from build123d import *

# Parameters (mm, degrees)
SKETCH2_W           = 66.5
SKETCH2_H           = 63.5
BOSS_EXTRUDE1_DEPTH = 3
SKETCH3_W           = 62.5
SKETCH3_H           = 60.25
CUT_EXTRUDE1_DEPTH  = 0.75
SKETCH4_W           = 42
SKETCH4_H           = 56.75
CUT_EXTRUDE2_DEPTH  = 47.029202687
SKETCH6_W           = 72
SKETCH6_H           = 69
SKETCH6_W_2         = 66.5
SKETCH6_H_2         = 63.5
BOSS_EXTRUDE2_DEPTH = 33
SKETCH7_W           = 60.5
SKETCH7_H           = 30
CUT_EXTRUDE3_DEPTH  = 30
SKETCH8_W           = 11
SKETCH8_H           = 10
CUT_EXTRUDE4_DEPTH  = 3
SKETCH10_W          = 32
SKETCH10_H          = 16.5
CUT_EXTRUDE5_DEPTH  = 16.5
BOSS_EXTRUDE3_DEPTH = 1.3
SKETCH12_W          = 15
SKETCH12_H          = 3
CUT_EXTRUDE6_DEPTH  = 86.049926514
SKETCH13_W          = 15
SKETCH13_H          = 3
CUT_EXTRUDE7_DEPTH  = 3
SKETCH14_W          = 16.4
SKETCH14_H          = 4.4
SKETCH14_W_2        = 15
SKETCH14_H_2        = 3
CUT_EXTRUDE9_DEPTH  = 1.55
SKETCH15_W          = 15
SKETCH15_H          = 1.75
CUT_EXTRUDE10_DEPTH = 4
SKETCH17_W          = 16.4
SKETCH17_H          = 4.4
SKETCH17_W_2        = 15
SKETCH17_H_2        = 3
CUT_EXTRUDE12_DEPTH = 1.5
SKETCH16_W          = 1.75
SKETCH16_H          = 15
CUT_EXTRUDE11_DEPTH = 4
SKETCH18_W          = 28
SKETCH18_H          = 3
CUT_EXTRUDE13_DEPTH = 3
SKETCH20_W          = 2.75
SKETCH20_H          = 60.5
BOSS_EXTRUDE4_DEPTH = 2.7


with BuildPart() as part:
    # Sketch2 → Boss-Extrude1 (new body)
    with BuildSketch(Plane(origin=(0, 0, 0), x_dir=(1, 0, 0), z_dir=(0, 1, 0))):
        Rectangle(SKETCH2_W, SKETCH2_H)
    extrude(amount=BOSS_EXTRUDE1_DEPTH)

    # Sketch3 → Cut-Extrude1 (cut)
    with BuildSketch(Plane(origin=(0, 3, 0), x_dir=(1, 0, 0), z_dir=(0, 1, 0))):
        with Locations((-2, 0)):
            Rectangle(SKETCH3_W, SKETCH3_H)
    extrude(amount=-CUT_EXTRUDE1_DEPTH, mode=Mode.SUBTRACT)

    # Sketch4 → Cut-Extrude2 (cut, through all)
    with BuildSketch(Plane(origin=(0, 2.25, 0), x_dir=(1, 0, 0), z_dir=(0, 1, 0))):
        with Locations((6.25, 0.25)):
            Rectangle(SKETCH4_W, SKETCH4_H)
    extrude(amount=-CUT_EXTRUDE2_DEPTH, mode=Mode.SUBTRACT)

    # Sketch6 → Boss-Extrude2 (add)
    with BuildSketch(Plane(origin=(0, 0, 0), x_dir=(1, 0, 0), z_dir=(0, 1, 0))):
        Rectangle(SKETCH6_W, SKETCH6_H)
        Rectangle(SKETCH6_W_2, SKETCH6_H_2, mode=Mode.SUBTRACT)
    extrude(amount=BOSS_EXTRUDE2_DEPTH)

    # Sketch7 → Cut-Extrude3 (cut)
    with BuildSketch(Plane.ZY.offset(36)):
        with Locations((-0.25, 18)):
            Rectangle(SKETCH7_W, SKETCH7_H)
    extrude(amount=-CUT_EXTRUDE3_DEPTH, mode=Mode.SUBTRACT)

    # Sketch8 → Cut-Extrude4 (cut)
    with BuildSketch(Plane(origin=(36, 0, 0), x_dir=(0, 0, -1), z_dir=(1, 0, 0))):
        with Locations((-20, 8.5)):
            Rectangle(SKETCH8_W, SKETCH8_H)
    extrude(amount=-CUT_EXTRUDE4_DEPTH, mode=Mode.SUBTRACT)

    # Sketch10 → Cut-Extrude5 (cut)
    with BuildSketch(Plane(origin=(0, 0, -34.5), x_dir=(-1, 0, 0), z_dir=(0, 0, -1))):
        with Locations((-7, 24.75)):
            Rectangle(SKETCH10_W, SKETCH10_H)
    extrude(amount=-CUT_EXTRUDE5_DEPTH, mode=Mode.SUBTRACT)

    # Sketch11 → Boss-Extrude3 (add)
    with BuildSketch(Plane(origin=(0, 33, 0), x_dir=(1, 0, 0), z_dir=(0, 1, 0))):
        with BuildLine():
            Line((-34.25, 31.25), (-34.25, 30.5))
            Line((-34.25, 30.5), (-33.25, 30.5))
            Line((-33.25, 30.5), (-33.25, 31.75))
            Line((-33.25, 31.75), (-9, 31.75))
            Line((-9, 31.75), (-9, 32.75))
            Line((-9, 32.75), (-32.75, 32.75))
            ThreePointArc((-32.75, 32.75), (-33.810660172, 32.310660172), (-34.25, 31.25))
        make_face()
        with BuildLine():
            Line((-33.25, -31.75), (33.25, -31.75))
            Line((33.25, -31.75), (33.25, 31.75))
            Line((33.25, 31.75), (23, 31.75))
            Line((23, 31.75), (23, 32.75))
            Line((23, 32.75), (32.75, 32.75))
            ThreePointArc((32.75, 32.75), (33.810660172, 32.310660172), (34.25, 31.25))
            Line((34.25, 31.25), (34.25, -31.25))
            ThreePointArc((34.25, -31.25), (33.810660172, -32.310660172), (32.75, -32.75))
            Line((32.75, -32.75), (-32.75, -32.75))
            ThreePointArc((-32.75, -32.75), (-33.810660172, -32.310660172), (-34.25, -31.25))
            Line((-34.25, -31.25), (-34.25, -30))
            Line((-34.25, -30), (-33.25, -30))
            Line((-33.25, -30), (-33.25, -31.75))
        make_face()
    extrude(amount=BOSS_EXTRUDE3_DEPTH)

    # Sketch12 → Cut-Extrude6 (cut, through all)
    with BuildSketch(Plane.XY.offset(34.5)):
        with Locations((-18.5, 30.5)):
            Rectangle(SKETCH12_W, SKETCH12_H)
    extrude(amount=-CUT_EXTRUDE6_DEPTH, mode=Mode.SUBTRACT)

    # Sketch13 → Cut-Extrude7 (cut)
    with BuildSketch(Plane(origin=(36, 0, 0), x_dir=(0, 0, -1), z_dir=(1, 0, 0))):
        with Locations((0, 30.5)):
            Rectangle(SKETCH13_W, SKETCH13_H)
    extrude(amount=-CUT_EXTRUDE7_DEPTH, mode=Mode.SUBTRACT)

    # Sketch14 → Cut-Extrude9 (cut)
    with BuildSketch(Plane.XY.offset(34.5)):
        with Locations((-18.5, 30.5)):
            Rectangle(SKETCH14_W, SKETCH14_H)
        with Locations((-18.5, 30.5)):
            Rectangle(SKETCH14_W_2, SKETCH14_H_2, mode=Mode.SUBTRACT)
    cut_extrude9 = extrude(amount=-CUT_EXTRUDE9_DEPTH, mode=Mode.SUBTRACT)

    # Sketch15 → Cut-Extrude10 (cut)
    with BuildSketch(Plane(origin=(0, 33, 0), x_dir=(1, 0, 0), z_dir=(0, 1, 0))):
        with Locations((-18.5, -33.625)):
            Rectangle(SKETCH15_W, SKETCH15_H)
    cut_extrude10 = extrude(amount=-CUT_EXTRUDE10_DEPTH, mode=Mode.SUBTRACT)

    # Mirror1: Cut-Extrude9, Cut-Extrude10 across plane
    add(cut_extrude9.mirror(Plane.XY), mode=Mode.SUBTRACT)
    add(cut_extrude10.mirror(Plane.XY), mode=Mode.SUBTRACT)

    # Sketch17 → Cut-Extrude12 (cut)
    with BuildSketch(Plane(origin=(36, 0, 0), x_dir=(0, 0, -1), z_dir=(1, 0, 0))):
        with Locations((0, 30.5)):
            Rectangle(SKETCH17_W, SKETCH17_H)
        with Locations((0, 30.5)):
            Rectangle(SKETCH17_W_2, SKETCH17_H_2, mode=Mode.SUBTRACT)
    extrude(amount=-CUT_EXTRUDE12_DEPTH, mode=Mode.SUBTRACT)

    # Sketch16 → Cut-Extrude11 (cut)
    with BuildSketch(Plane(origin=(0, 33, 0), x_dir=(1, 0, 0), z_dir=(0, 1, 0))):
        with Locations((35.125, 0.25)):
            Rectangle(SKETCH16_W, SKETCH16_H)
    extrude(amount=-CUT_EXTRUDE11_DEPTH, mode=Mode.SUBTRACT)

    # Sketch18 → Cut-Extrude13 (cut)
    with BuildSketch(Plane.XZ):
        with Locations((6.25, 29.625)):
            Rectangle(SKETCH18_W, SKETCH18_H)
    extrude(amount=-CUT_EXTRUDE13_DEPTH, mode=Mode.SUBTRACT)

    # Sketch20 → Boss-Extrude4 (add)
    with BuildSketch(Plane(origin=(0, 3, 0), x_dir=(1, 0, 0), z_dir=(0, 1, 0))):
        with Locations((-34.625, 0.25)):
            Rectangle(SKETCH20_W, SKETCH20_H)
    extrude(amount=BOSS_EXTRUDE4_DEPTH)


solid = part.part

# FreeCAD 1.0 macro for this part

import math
import FreeCAD as App
import Part
import Sketcher

V = App.Vector
Q = App.Units.Quantity

doc = App.newDocument("Part")
params = doc.addObject("Spreadsheet::Sheet", "Params")
for row, (alias, value) in enumerate([
    ("sketch1_width", "66.5 mm"),
    ("sketch1_height", "63.5 mm"),
    ("pad1_length", "3 mm"),
    ("sketch2_width", "62.5 mm"),
    ("sketch2_height", "60.25 mm"),
    ("pocket1_length", "0.75 mm"),
    ("sketch3_width", "42 mm"),
    ("sketch3_height", "56.75 mm"),
    ("sketch4_width", "72 mm"),
    ("sketch4_height", "69 mm"),
    ("sketch4_width2", "66.5 mm"),
    ("sketch4_height2", "63.5 mm"),
    ("pad2_length", "33 mm"),
    ("sketch5_width", "30 mm"),
    ("sketch5_height", "60.5 mm"),
    ("pocket3_length", "30 mm"),
    ("sketch6_width", "10 mm"),
    ("sketch6_height", "11 mm"),
    ("pocket4_length", "3 mm"),
    ("sketch7_width", "32 mm"),
    ("sketch7_height", "16.5 mm"),
    ("pocket5_length", "16.5 mm"),
    ("sketch8_radius", "1.5 mm"),
    ("sketch8_width", "1 mm"),
    ("sketch8_width2", "66.5 mm"),
    ("sketch8_height", "62.5 mm"),
    ("pad3_length", "1.3 mm"),
    ("sketch9_width", "15 mm"),
    ("sketch9_height", "3 mm"),
    ("sketch10_width", "3 mm"),
    ("sketch10_height", "15 mm"),
    ("pocket7_length", "3 mm"),
    ("sketch11_width", "15 mm"),
    ("sketch11_height", "3 mm"),
    ("sketch11_width2", "16.4 mm"),
    ("sketch11_height2", "4.4 mm"),
    ("pocket8_length", "1.55 mm"),
    ("sketch12_width", "15 mm"),
    ("sketch12_height", "1.75 mm"),
    ("pocket9_length", "4 mm"),
    ("sketch13_width", "3 mm"),
    ("sketch13_height", "15 mm"),
    ("sketch13_width2", "4.4 mm"),
    ("sketch13_height2", "16.4 mm"),
    ("pocket10_length", "1.5 mm"),
    ("sketch14_height", "15 mm"),
    ("sketch14_width", "1.75 mm"),
    ("pocket11_length", "4 mm"),
    ("sketch15_width", "28 mm"),
    ("sketch15_height", "3 mm"),
    ("pocket12_length", "3 mm"),
    ("sketch16_height", "60.5 mm"),
    ("sketch16_width", "2.75 mm"),
    ("pad4_length", "2.7 mm"),
], start=1):
    params.set(f"A{row}", alias)
    params.set(f"B{row}", "=" + value)
    params.setAlias(f"B{row}", alias)

body = doc.addObject("PartDesign::Body", "Body")

sketch1 = body.newObject("Sketcher::SketchObject", "Sketch")
sketch1.AttachmentSupport = (doc.getObject("XZ_Plane"), [""])
sketch1.MapMode = "FlatFace"
sketch1.addGeometry(Part.LineSegment(V(-33.25, -31.75, 0), V(-33.25, 31.75, 0)), False)
sketch1.addGeometry(Part.LineSegment(V(-33.25, 31.75, 0), V(33.25, 31.75, 0)), False)
sketch1.addGeometry(Part.LineSegment(V(33.25, 31.75, 0), V(33.25, -31.75, 0)), False)
sketch1.addGeometry(Part.LineSegment(V(33.25, -31.75, 0), V(-33.25, -31.75, 0)), False)
sketch1.addConstraint(Sketcher.Constraint("Coincident", 0, 2, 1, 1))
sketch1.addConstraint(Sketcher.Constraint("Coincident", 1, 2, 2, 1))
sketch1.addConstraint(Sketcher.Constraint("Coincident", 2, 2, 3, 1))
sketch1.addConstraint(Sketcher.Constraint("Coincident", 3, 2, 0, 1))
sketch1.addConstraint(Sketcher.Constraint("Vertical", 0))
sketch1.addConstraint(Sketcher.Constraint("Horizontal", 1))
sketch1.addConstraint(Sketcher.Constraint("Vertical", 2))
sketch1.addConstraint(Sketcher.Constraint("Horizontal", 3))
sketch1.addConstraint(Sketcher.Constraint("Symmetric", 0, 2, 2, 2, -1, 1))
sketch1.addConstraint(Sketcher.Constraint("DistanceX", 1, 1, 1, 2, Q("66.5 mm")))
sketch1.addConstraint(Sketcher.Constraint("DistanceY", 0, 1, 0, 2, Q("63.5 mm")))
sketch1.setExpression("Constraints[9]", "Params.sketch1_width")
sketch1.setExpression("Constraints[10]", "Params.sketch1_height")
pad1 = body.newObject("PartDesign::Pad", "Pad")
pad1.Profile = sketch1
pad1.setExpression("Length", "Params.pad1_length")
pad1.Reversed = True

sketch2 = body.newObject("Sketcher::SketchObject", "Sketch001")
sketch2.AttachmentSupport = (doc.getObject("XZ_Plane"), [""])
sketch2.MapMode = "FlatFace"
sketch2.AttachmentOffset = App.Placement(V(0, 0, -3), App.Rotation())
sketch2.addGeometry(Part.LineSegment(V(-33.25, -30.125, 0), V(-33.25, 30.125, 0)), False)
sketch2.addGeometry(Part.LineSegment(V(-33.25, 30.125, 0), V(29.25, 30.125, 0)), False)
sketch2.addGeometry(Part.LineSegment(V(29.25, 30.125, 0), V(29.25, -30.125, 0)), False)
sketch2.addGeometry(Part.LineSegment(V(29.25, -30.125, 0), V(-33.25, -30.125, 0)), False)
sketch2.addConstraint(Sketcher.Constraint("Coincident", 0, 2, 1, 1))
sketch2.addConstraint(Sketcher.Constraint("Coincident", 1, 2, 2, 1))
sketch2.addConstraint(Sketcher.Constraint("Coincident", 2, 2, 3, 1))
sketch2.addConstraint(Sketcher.Constraint("Coincident", 3, 2, 0, 1))
sketch2.addConstraint(Sketcher.Constraint("Vertical", 0))
sketch2.addConstraint(Sketcher.Constraint("Horizontal", 1))
sketch2.addConstraint(Sketcher.Constraint("Vertical", 2))
sketch2.addConstraint(Sketcher.Constraint("Horizontal", 3))
sketch2.addConstraint(Sketcher.Constraint("DistanceX", 1, 1, 1, 2, Q("62.5 mm")))
sketch2.addConstraint(Sketcher.Constraint("DistanceY", 0, 1, 0, 2, Q("60.25 mm")))
sketch2.addConstraint(Sketcher.Constraint("DistanceX", 0, 2, -1, 1, Q("33.25 mm")))
sketch2.addConstraint(Sketcher.Constraint("DistanceY", -1, 1, 0, 2, Q("30.125 mm")))
sketch2.setExpression("Constraints[8]", "Params.sketch2_width")
sketch2.setExpression("Constraints[9]", "Params.sketch2_height")
pocket1 = body.newObject("PartDesign::Pocket", "Pocket")
pocket1.Profile = sketch2
pocket1.setExpression("Length", "Params.pocket1_length")
pocket1.Reversed = True

sketch3 = body.newObject("Sketcher::SketchObject", "Sketch002")
sketch3.AttachmentSupport = (doc.getObject("XZ_Plane"), [""])
sketch3.MapMode = "FlatFace"
sketch3.AttachmentOffset = App.Placement(V(0, 0, -2.25), App.Rotation())
sketch3.addGeometry(Part.LineSegment(V(-14.75, -28.625, 0), V(-14.75, 28.125, 0)), False)
sketch3.addGeometry(Part.LineSegment(V(-14.75, 28.125, 0), V(27.25, 28.125, 0)), False)
sketch3.addGeometry(Part.LineSegment(V(27.25, 28.125, 0), V(27.25, -28.625, 0)), False)
sketch3.addGeometry(Part.LineSegment(V(27.25, -28.625, 0), V(-14.75, -28.625, 0)), False)
sketch3.addConstraint(Sketcher.Constraint("Coincident", 0, 2, 1, 1))
sketch3.addConstraint(Sketcher.Constraint("Coincident", 1, 2, 2, 1))
sketch3.addConstraint(Sketcher.Constraint("Coincident", 2, 2, 3, 1))
sketch3.addConstraint(Sketcher.Constraint("Coincident", 3, 2, 0, 1))
sketch3.addConstraint(Sketcher.Constraint("Vertical", 0))
sketch3.addConstraint(Sketcher.Constraint("Horizontal", 1))
sketch3.addConstraint(Sketcher.Constraint("Vertical", 2))
sketch3.addConstraint(Sketcher.Constraint("Horizontal", 3))
sketch3.addConstraint(Sketcher.Constraint("DistanceX", 1, 1, 1, 2, Q("42 mm")))
sketch3.addConstraint(Sketcher.Constraint("DistanceY", 0, 1, 0, 2, Q("56.75 mm")))
sketch3.addConstraint(Sketcher.Constraint("DistanceX", 0, 2, -1, 1, Q("14.75 mm")))
sketch3.addConstraint(Sketcher.Constraint("DistanceY", -1, 1, 0, 2, Q("28.125 mm")))
sketch3.setExpression("Constraints[8]", "Params.sketch3_width")
sketch3.setExpression("Constraints[9]", "Params.sketch3_height")
pocket2 = body.newObject("PartDesign::Pocket", "Pocket001")
pocket2.Profile = sketch3
pocket2.Type = "ThroughAll"
pocket2.Reversed = True

sketch4 = body.newObject("Sketcher::SketchObject", "Sketch003")
sketch4.AttachmentSupport = (doc.getObject("XZ_Plane"), [""])
sketch4.MapMode = "FlatFace"
sketch4.addGeometry(Part.LineSegment(V(-36, -34.5, 0), V(-36, 34.5, 0)), False)
sketch4.addGeometry(Part.LineSegment(V(-36, 34.5, 0), V(36, 34.5, 0)), False)
sketch4.addGeometry(Part.LineSegment(V(36, 34.5, 0), V(36, -34.5, 0)), False)
sketch4.addGeometry(Part.LineSegment(V(36, -34.5, 0), V(-36, -34.5, 0)), False)
sketch4.addGeometry(Part.LineSegment(V(33.25, 31.75, 0), V(-33.25, 31.75, 0)), False)
sketch4.addGeometry(Part.LineSegment(V(-33.25, 31.75, 0), V(-33.25, -31.75, 0)), False)
sketch4.addGeometry(Part.LineSegment(V(-33.25, -31.75, 0), V(33.25, -31.75, 0)), False)
sketch4.addGeometry(Part.LineSegment(V(33.25, -31.75, 0), V(33.25, 31.75, 0)), False)
sketch4.addConstraint(Sketcher.Constraint("Coincident", 0, 2, 1, 1))
sketch4.addConstraint(Sketcher.Constraint("Coincident", 1, 2, 2, 1))
sketch4.addConstraint(Sketcher.Constraint("Coincident", 2, 2, 3, 1))
sketch4.addConstraint(Sketcher.Constraint("Coincident", 3, 2, 0, 1))
sketch4.addConstraint(Sketcher.Constraint("Coincident", 4, 2, 5, 1))
sketch4.addConstraint(Sketcher.Constraint("Coincident", 5, 2, 6, 1))
sketch4.addConstraint(Sketcher.Constraint("Coincident", 6, 2, 7, 1))
sketch4.addConstraint(Sketcher.Constraint("Coincident", 7, 2, 4, 1))
sketch4.addConstraint(Sketcher.Constraint("Vertical", 0))
sketch4.addConstraint(Sketcher.Constraint("Horizontal", 1))
sketch4.addConstraint(Sketcher.Constraint("Vertical", 2))
sketch4.addConstraint(Sketcher.Constraint("Horizontal", 3))
sketch4.addConstraint(Sketcher.Constraint("Horizontal", 4))
sketch4.addConstraint(Sketcher.Constraint("Vertical", 5))
sketch4.addConstraint(Sketcher.Constraint("Horizontal", 6))
sketch4.addConstraint(Sketcher.Constraint("Vertical", 7))
sketch4.addConstraint(Sketcher.Constraint("Symmetric", 0, 2, 2, 2, -1, 1))
sketch4.addConstraint(Sketcher.Constraint("Symmetric", 4, 2, 6, 2, -1, 1))
sketch4.addConstraint(Sketcher.Constraint("DistanceX", 1, 1, 1, 2, Q("72 mm")))
sketch4.addConstraint(Sketcher.Constraint("DistanceY", 0, 1, 0, 2, Q("69 mm")))
sketch4.addConstraint(Sketcher.Constraint("DistanceX", 4, 2, 4, 1, Q("66.5 mm")))
sketch4.addConstraint(Sketcher.Constraint("DistanceY", 5, 2, 5, 1, Q("63.5 mm")))
sketch4.setExpression("Constraints[18]", "Params.sketch4_width")
sketch4.setExpression("Constraints[19]", "Params.sketch4_height")
sketch4.setExpression("Constraints[20]", "Params.sketch4_width2")
sketch4.setExpression("Constraints[21]", "Params.sketch4_height2")
pad2 = body.newObject("PartDesign::Pad", "Pad001")
pad2.Profile = sketch4
pad2.setExpression("Length", "Params.pad2_length")
pad2.Reversed = True

sketch5 = body.newObject("Sketcher::SketchObject", "Sketch004")
sketch5.AttachmentSupport = (doc.getObject("YZ_Plane"), [""])
sketch5.MapMode = "FlatFace"
sketch5.AttachmentOffset = App.Placement(V(0, 0, -36), App.Rotation())
sketch5.addGeometry(Part.LineSegment(V(33, -30.5, 0), V(3, -30.5, 0)), False)
sketch5.addGeometry(Part.LineSegment(V(3, -30.5, 0), V(3, 30, 0)), False)
sketch5.addGeometry(Part.LineSegment(V(3, 30, 0), V(33, 30, 0)), False)
sketch5.addGeometry(Part.LineSegment(V(33, 30, 0), V(33, -30.5, 0)), False)
sketch5.addConstraint(Sketcher.Constraint("Coincident", 0, 2, 1, 1))
sketch5.addConstraint(Sketcher.Constraint("Coincident", 1, 2, 2, 1))
sketch5.addConstraint(Sketcher.Constraint("Coincident", 2, 2, 3, 1))
sketch5.addConstraint(Sketcher.Constraint("Coincident", 3, 2, 0, 1))
sketch5.addConstraint(Sketcher.Constraint("Horizontal", 0))
sketch5.addConstraint(Sketcher.Constraint("Vertical", 1))
sketch5.addConstraint(Sketcher.Constraint("Horizontal", 2))
sketch5.addConstraint(Sketcher.Constraint("Vertical", 3))
sketch5.addConstraint(Sketcher.Constraint("DistanceX", 0, 2, 0, 1, Q("30 mm")))
sketch5.addConstraint(Sketcher.Constraint("DistanceY", 1, 1, 1, 2, Q("60.5 mm")))
sketch5.addConstraint(Sketcher.Constraint("DistanceX", -1, 1, 0, 2, Q("3 mm")))
sketch5.addConstraint(Sketcher.Constraint("DistanceY", -1, 1, 1, 2, Q("30 mm")))
sketch5.setExpression("Constraints[8]", "Params.sketch5_width")
sketch5.setExpression("Constraints[9]", "Params.sketch5_height")
pocket3 = body.newObject("PartDesign::Pocket", "Pocket002")
pocket3.Profile = sketch5
pocket3.setExpression("Length", "Params.pocket3_length")
pocket3.Reversed = True

sketch6 = body.newObject("Sketcher::SketchObject", "Sketch005")
sketch6.AttachmentSupport = (doc.getObject("YZ_Plane"), [""])
sketch6.MapMode = "FlatFace"
sketch6.AttachmentOffset = App.Placement(V(0, 0, 36), App.Rotation())
sketch6.addGeometry(Part.LineSegment(V(13.5, 25.5, 0), V(3.5, 25.5, 0)), False)
sketch6.addGeometry(Part.LineSegment(V(3.5, 25.5, 0), V(3.5, 14.5, 0)), False)
sketch6.addGeometry(Part.LineSegment(V(3.5, 14.5, 0), V(13.5, 14.5, 0)), False)
sketch6.addGeometry(Part.LineSegment(V(13.5, 14.5, 0), V(13.5, 25.5, 0)), False)
sketch6.addConstraint(Sketcher.Constraint("Coincident", 0, 2, 1, 1))
sketch6.addConstraint(Sketcher.Constraint("Coincident", 1, 2, 2, 1))
sketch6.addConstraint(Sketcher.Constraint("Coincident", 2, 2, 3, 1))
sketch6.addConstraint(Sketcher.Constraint("Coincident", 3, 2, 0, 1))
sketch6.addConstraint(Sketcher.Constraint("Horizontal", 0))
sketch6.addConstraint(Sketcher.Constraint("Vertical", 1))
sketch6.addConstraint(Sketcher.Constraint("Horizontal", 2))
sketch6.addConstraint(Sketcher.Constraint("Vertical", 3))
sketch6.addConstraint(Sketcher.Constraint("DistanceX", 0, 2, 0, 1, Q("10 mm")))
sketch6.addConstraint(Sketcher.Constraint("DistanceY", 1, 2, 1, 1, Q("11 mm")))
sketch6.addConstraint(Sketcher.Constraint("DistanceX", -1, 1, 0, 2, Q("3.5 mm")))
sketch6.addConstraint(Sketcher.Constraint("DistanceY", -1, 1, 0, 2, Q("25.5 mm")))
sketch6.setExpression("Constraints[8]", "Params.sketch6_width")
sketch6.setExpression("Constraints[9]", "Params.sketch6_height")
pocket4 = body.newObject("PartDesign::Pocket", "Pocket003")
pocket4.Profile = sketch6
pocket4.setExpression("Length", "Params.pocket4_length")

sketch7 = body.newObject("Sketcher::SketchObject", "Sketch006")
sketch7.AttachmentSupport = (doc.getObject("XY_Plane"), [""])
sketch7.MapMode = "FlatFace"
sketch7.AttachmentOffset = App.Placement(V(0, 0, -34.5), App.Rotation())
sketch7.addGeometry(Part.LineSegment(V(23, 33, 0), V(23, 16.5, 0)), False)
sketch7.addGeometry(Part.LineSegment(V(23, 16.5, 0), V(-9, 16.5, 0)), False)
sketch7.addGeometry(Part.LineSegment(V(-9, 16.5, 0), V(-9, 33, 0)), False)
sketch7.addGeometry(Part.LineSegment(V(-9, 33, 0), V(23, 33, 0)), False)
sketch7.addConstraint(Sketcher.Constraint("Coincident", 0, 2, 1, 1))
sketch7.addConstraint(Sketcher.Constraint("Coincident", 1, 2, 2, 1))
sketch7.addConstraint(Sketcher.Constraint("Coincident", 2, 2, 3, 1))
sketch7.addConstraint(Sketcher.Constraint("Coincident", 3, 2, 0, 1))
sketch7.addConstraint(Sketcher.Constraint("Vertical", 0))
sketch7.addConstraint(Sketcher.Constraint("Horizontal", 1))
sketch7.addConstraint(Sketcher.Constraint("Vertical", 2))
sketch7.addConstraint(Sketcher.Constraint("Horizontal", 3))
sketch7.addConstraint(Sketcher.Constraint("DistanceX", 1, 2, 1, 1, Q("32 mm")))
sketch7.addConstraint(Sketcher.Constraint("DistanceY", 0, 2, 0, 1, Q("16.5 mm")))
sketch7.addConstraint(Sketcher.Constraint("DistanceX", -1, 1, 0, 2, Q("23 mm")))
sketch7.addConstraint(Sketcher.Constraint("DistanceY", -1, 1, 2, 2, Q("33 mm")))
sketch7.setExpression("Constraints[8]", "Params.sketch7_width")
sketch7.setExpression("Constraints[9]", "Params.sketch7_height")
pocket5 = body.newObject("PartDesign::Pocket", "Pocket004")
pocket5.Profile = sketch7
pocket5.setExpression("Length", "Params.pocket5_length")
pocket5.Reversed = True

sketch8 = body.newObject("Sketcher::SketchObject", "Sketch007")
sketch8.AttachmentSupport = (doc.getObject("XZ_Plane"), [""])
sketch8.MapMode = "FlatFace"
sketch8.AttachmentOffset = App.Placement(V(0, 0, -33), App.Rotation())
sketch8.addGeometry(Part.LineSegment(V(-34.25, -31.25, 0), V(-34.25, -30.5, 0)), False)
sketch8.addGeometry(Part.LineSegment(V(-34.25, -30.5, 0), V(-33.25, -30.5, 0)), False)
sketch8.addGeometry(Part.LineSegment(V(-33.25, -30.5, 0), V(-33.25, -31.75, 0)), False)
sketch8.addGeometry(Part.LineSegment(V(-33.25, -31.75, 0), V(-9, -31.75, 0)), False)
sketch8.addGeometry(Part.LineSegment(V(-9, -31.75, 0), V(-9, -32.75, 0)), False)
sketch8.addGeometry(Part.LineSegment(V(-9, -32.75, 0), V(-32.75, -32.75, 0)), False)
sketch8.addGeometry(Part.ArcOfCircle(Part.Circle(V(-32.75, -31.25, 0), V(0, 0, 1), 1.5), math.radians(180), math.radians(270)), False)
sketch8.addGeometry(Part.LineSegment(V(33.25, 31.75, 0), V(-33.25, 31.75, 0)), False)
sketch8.addGeometry(Part.LineSegment(V(-33.25, 31.75, 0), V(-33.25, 30, 0)), False)
sketch8.addGeometry(Part.LineSegment(V(-33.25, 30, 0), V(-34.25, 30, 0)), False)
sketch8.addGeometry(Part.LineSegment(V(-34.25, 30, 0), V(-34.25, 31.25, 0)), False)
sketch8.addGeometry(Part.ArcOfCircle(Part.Circle(V(-32.75, 31.25, 0), V(0, 0, 1), 1.5), math.radians(90), math.radians(180)), False)
sketch8.addGeometry(Part.LineSegment(V(-32.75, 32.75, 0), V(32.75, 32.75, 0)), False)
sketch8.addGeometry(Part.ArcOfCircle(Part.Circle(V(32.75, 31.25, 0), V(0, 0, 1), 1.5), math.radians(0), math.radians(90)), False)
sketch8.addGeometry(Part.LineSegment(V(34.25, 31.25, 0), V(34.25, -31.25, 0)), False)
sketch8.addGeometry(Part.ArcOfCircle(Part.Circle(V(32.75, -31.25, 0), V(0, 0, 1), 1.5), math.radians(-90), math.radians(0)), False)
sketch8.addGeometry(Part.LineSegment(V(32.75, -32.75, 0), V(23, -32.75, 0)), False)
sketch8.addGeometry(Part.LineSegment(V(23, -32.75, 0), V(23, -31.75, 0)), False)
sketch8.addGeometry(Part.LineSegment(V(23, -31.75, 0), V(33.25, -31.75, 0)), False)
sketch8.addGeometry(Part.LineSegment(V(33.25, -31.75, 0), V(33.25, 31.75, 0)), False)
sketch8.addConstraint(Sketcher.Constraint("Coincident", 0, 2, 1, 1))
sketch8.addConstraint(Sketcher.Constraint("Coincident", 1, 2, 2, 1))
sketch8.addConstraint(Sketcher.Constraint("Coincident", 2, 2, 3, 1))
sketch8.addConstraint(Sketcher.Constraint("Coincident", 3, 2, 4, 1))
sketch8.addConstraint(Sketcher.Constraint("Coincident", 4, 2, 5, 1))
sketch8.addConstraint(Sketcher.Constraint("Tangent", 5, 2, 6, 2))
sketch8.addConstraint(Sketcher.Constraint("Tangent", 6, 1, 0, 1))
sketch8.addConstraint(Sketcher.Constraint("Coincident", 7, 2, 8, 1))
sketch8.addConstraint(Sketcher.Constraint("Coincident", 8, 2, 9, 1))
sketch8.addConstraint(Sketcher.Constraint("Coincident", 9, 2, 10, 1))
sketch8.addConstraint(Sketcher.Constraint("Tangent", 10, 2, 11, 2))
sketch8.addConstraint(Sketcher.Constraint("Tangent", 11, 1, 12, 1))
sketch8.addConstraint(Sketcher.Constraint("Tangent", 12, 2, 13, 2))
sketch8.addConstraint(Sketcher.Constraint("Tangent", 13, 1, 14, 1))
sketch8.addConstraint(Sketcher.Constraint("Tangent", 14, 2, 15, 2))
sketch8.addConstraint(Sketcher.Constraint("Tangent", 15, 1, 16, 1))
sketch8.addConstraint(Sketcher.Constraint("Coincident", 16, 2, 17, 1))
sketch8.addConstraint(Sketcher.Constraint("Coincident", 17, 2, 18, 1))
sketch8.addConstraint(Sketcher.Constraint("Coincident", 18, 2, 19, 1))
sketch8.addConstraint(Sketcher.Constraint("Coincident", 19, 2, 7, 1))
sketch8.addConstraint(Sketcher.Constraint("Vertical", 0))
sketch8.addConstraint(Sketcher.Constraint("Horizontal", 1))
sketch8.addConstraint(Sketcher.Constraint("Vertical", 2))
sketch8.addConstraint(Sketcher.Constraint("Horizontal", 3))
sketch8.addConstraint(Sketcher.Constraint("Vertical", 4))
sketch8.addConstraint(Sketcher.Constraint("Horizontal", 5))
sketch8.addConstraint(Sketcher.Constraint("Horizontal", 7))
sketch8.addConstraint(Sketcher.Constraint("Vertical", 8))
sketch8.addConstraint(Sketcher.Constraint("Horizontal", 9))
sketch8.addConstraint(Sketcher.Constraint("Vertical", 10))
sketch8.addConstraint(Sketcher.Constraint("Horizontal", 12))
sketch8.addConstraint(Sketcher.Constraint("Vertical", 14))
sketch8.addConstraint(Sketcher.Constraint("Horizontal", 16))
sketch8.addConstraint(Sketcher.Constraint("Vertical", 17))
sketch8.addConstraint(Sketcher.Constraint("Horizontal", 18))
sketch8.addConstraint(Sketcher.Constraint("Vertical", 19))
sketch8.addConstraint(Sketcher.Constraint("Equal", 6, 11))
sketch8.addConstraint(Sketcher.Constraint("Equal", 11, 13))
sketch8.addConstraint(Sketcher.Constraint("Equal", 13, 15))
sketch8.addConstraint(Sketcher.Constraint("Symmetric", 6, 3, 13, 3, -1, 1))
sketch8.addConstraint(Sketcher.Constraint("Symmetric", 11, 3, 15, 3, -1, 1))
sketch8.addConstraint(Sketcher.Constraint("Symmetric", 7, 2, 18, 2, -1, 1))
sketch8.addConstraint(Sketcher.Constraint("Symmetric", 2, 2, 19, 2, -1, 1))
sketch8.addConstraint(Sketcher.Constraint("Equal", 9, 4))
sketch8.addConstraint(Sketcher.Constraint("Equal", 2, 10))
sketch8.addConstraint(Sketcher.Constraint("Radius", 6, Q("1.5 mm")))
sketch8.addConstraint(Sketcher.Constraint("DistanceX", 1, 1, 1, 2, Q("1 mm")))
sketch8.addConstraint(Sketcher.Constraint("DistanceX", 7, 2, 7, 1, Q("66.5 mm")))
sketch8.addConstraint(Sketcher.Constraint("DistanceY", 14, 2, 14, 1, Q("62.5 mm")))
sketch8.addConstraint(Sketcher.Constraint("DistanceX", 3, 2, -1, 1, Q("9 mm")))
sketch8.addConstraint(Sketcher.Constraint("DistanceY", -1, 1, 8, 2, Q("30 mm")))
sketch8.addConstraint(Sketcher.Constraint("DistanceX", -1, 1, 16, 2, Q("23 mm")))
sketch8.setExpression("Constraints[45]", "Params.sketch8_radius")
sketch8.setExpression("Constraints[46]", "Params.sketch8_width")
sketch8.setExpression("Constraints[47]", "Params.sketch8_width2")
sketch8.setExpression("Constraints[48]", "Params.sketch8_height")
pad3 = body.newObject("PartDesign::Pad", "Pad002")
pad3.Profile = sketch8
pad3.setExpression("Length", "Params.pad3_length")
pad3.Reversed = True

sketch9 = body.newObject("Sketcher::SketchObject", "Sketch008")
sketch9.AttachmentSupport = (doc.getObject("XY_Plane"), [""])
sketch9.MapMode = "FlatFace"
sketch9.AttachmentOffset = App.Placement(V(0, 0, 34.5), App.Rotation())
sketch9.addGeometry(Part.LineSegment(V(-26, 32, 0), V(-26, 29, 0)), False)
sketch9.addGeometry(Part.LineSegment(V(-26, 29, 0), V(-11, 29, 0)), False)
sketch9.addGeometry(Part.LineSegment(V(-11, 29, 0), V(-11, 32, 0)), False)
sketch9.addGeometry(Part.LineSegment(V(-11, 32, 0), V(-26, 32, 0)), False)
sketch9.addConstraint(Sketcher.Constraint("Coincident", 0, 2, 1, 1))
sketch9.addConstraint(Sketcher.Constraint("Coincident", 1, 2, 2, 1))
sketch9.addConstraint(Sketcher.Constraint("Coincident", 2, 2, 3, 1))
sketch9.addConstraint(Sketcher.Constraint("Coincident", 3, 2, 0, 1))
sketch9.addConstraint(Sketcher.Constraint("Vertical", 0))
sketch9.addConstraint(Sketcher.Constraint("Horizontal", 1))
sketch9.addConstraint(Sketcher.Constraint("Vertical", 2))
sketch9.addConstraint(Sketcher.Constraint("Horizontal", 3))
sketch9.addConstraint(Sketcher.Constraint("DistanceX", 1, 1, 1, 2, Q("15 mm")))
sketch9.addConstraint(Sketcher.Constraint("DistanceY", 0, 2, 0, 1, Q("3 mm")))
sketch9.addConstraint(Sketcher.Constraint("DistanceX", 0, 2, -1, 1, Q("26 mm")))
sketch9.addConstraint(Sketcher.Constraint("DistanceY", -1, 1, 0, 2, Q("29 mm")))
sketch9.setExpression("Constraints[8]", "Params.sketch9_width")
sketch9.setExpression("Constraints[9]", "Params.sketch9_height")
pocket6 = body.newObject("PartDesign::Pocket", "Pocket005")
pocket6.Profile = sketch9
pocket6.Type = "ThroughAll"

sketch10 = body.newObject("Sketcher::SketchObject", "Sketch009")
sketch10.AttachmentSupport = (doc.getObject("YZ_Plane"), [""])
sketch10.MapMode = "FlatFace"
sketch10.AttachmentOffset = App.Placement(V(0, 0, 36), App.Rotation())
sketch10.addGeometry(Part.LineSegment(V(32, 7.5, 0), V(29, 7.5, 0)), False)
sketch10.addGeometry(Part.LineSegment(V(29, 7.5, 0), V(29, -7.5, 0)), False)
sketch10.addGeometry(Part.LineSegment(V(29, -7.5, 0), V(32, -7.5, 0)), False)
sketch10.addGeometry(Part.LineSegment(V(32, -7.5, 0), V(32, 7.5, 0)), False)
sketch10.addConstraint(Sketcher.Constraint("Coincident", 0, 2, 1, 1))
sketch10.addConstraint(Sketcher.Constraint("Coincident", 1, 2, 2, 1))
sketch10.addConstraint(Sketcher.Constraint("Coincident", 2, 2, 3, 1))
sketch10.addConstraint(Sketcher.Constraint("Coincident", 3, 2, 0, 1))
sketch10.addConstraint(Sketcher.Constraint("Horizontal", 0))
sketch10.addConstraint(Sketcher.Constraint("Vertical", 1))
sketch10.addConstraint(Sketcher.Constraint("Horizontal", 2))
sketch10.addConstraint(Sketcher.Constraint("Vertical", 3))
sketch10.addConstraint(Sketcher.Constraint("DistanceX", 0, 2, 0, 1, Q("3 mm")))
sketch10.addConstraint(Sketcher.Constraint("DistanceY", 1, 2, 1, 1, Q("15 mm")))
sketch10.addConstraint(Sketcher.Constraint("DistanceX", -1, 1, 0, 2, Q("29 mm")))
sketch10.addConstraint(Sketcher.Constraint("DistanceY", -1, 1, 0, 2, Q("7.5 mm")))
sketch10.setExpression("Constraints[8]", "Params.sketch10_width")
sketch10.setExpression("Constraints[9]", "Params.sketch10_height")
pocket7 = body.newObject("PartDesign::Pocket", "Pocket006")
pocket7.Profile = sketch10
pocket7.setExpression("Length", "Params.pocket7_length")

sketch11 = body.newObject("Sketcher::SketchObject", "Sketch010")
sketch11.AttachmentSupport = (doc.getObject("XY_Plane"), [""])
sketch11.MapMode = "FlatFace"
sketch11.AttachmentOffset = App.Placement(V(0, 0, 34.5), App.Rotation())
sketch11.addGeometry(Part.LineSegment(V(-26.7, 32.7, 0), V(-26.7, 28.3, 0)), False)
sketch11.addGeometry(Part.LineSegment(V(-26.7, 28.3, 0), V(-10.3, 28.3, 0)), False)
sketch11.addGeometry(Part.LineSegment(V(-10.3, 28.3, 0), V(-10.3, 32.7, 0)), False)
sketch11.addGeometry(Part.LineSegment(V(-10.3, 32.7, 0), V(-26.7, 32.7, 0)), False)
sketch11.addGeometry(Part.LineSegment(V(-11, 29, 0), V(-26, 29, 0)), False)
sketch11.addGeometry(Part.LineSegment(V(-26, 29, 0), V(-26, 32, 0)), False)
sketch11.addGeometry(Part.LineSegment(V(-26, 32, 0), V(-11, 32, 0)), False)
sketch11.addGeometry(Part.LineSegment(V(-11, 32, 0), V(-11, 29, 0)), False)
sketch11.addConstraint(Sketcher.Constraint("Coincident", 0, 2, 1, 1))
sketch11.addConstraint(Sketcher.Constraint("Coincident", 1, 2, 2, 1))
sketch11.addConstraint(Sketcher.Constraint("Coincident", 2, 2, 3, 1))
sketch11.addConstraint(Sketcher.Constraint("Coincident", 3, 2, 0, 1))
sketch11.addConstraint(Sketcher.Constraint("Coincident", 4, 2, 5, 1))
sketch11.addConstraint(Sketcher.Constraint("Coincident", 5, 2, 6, 1))
sketch11.addConstraint(Sketcher.Constraint("Coincident", 6, 2, 7, 1))
sketch11.addConstraint(Sketcher.Constraint("Coincident", 7, 2, 4, 1))
sketch11.addConstraint(Sketcher.Constraint("Vertical", 0))
sketch11.addConstraint(Sketcher.Constraint("Horizontal", 1))
sketch11.addConstraint(Sketcher.Constraint("Vertical", 2))
sketch11.addConstraint(Sketcher.Constraint("Horizontal", 3))
sketch11.addConstraint(Sketcher.Constraint("Horizontal", 4))
sketch11.addConstraint(Sketcher.Constraint("Vertical", 5))
sketch11.addConstraint(Sketcher.Constraint("Horizontal", 6))
sketch11.addConstraint(Sketcher.Constraint("Vertical", 7))
sketch11.addConstraint(Sketcher.Constraint("DistanceX", 4, 2, 4, 1, Q("15 mm")))
sketch11.addConstraint(Sketcher.Constraint("DistanceY", 5, 1, 5, 2, Q("3 mm")))
sketch11.addConstraint(Sketcher.Constraint("DistanceX", 1, 1, 1, 2, Q("16.4 mm")))
sketch11.addConstraint(Sketcher.Constraint("DistanceY", 0, 2, 0, 1, Q("4.4 mm")))
sketch11.addConstraint(Sketcher.Constraint("DistanceX", 4, 2, -1, 1, Q("26 mm")))
sketch11.addConstraint(Sketcher.Constraint("DistanceY", -1, 1, 4, 2, Q("29 mm")))
sketch11.addConstraint(Sketcher.Constraint("DistanceX", 0, 2, -1, 1, Q("26.7 mm")))
sketch11.addConstraint(Sketcher.Constraint("DistanceY", -1, 1, 0, 2, Q("28.3 mm")))
sketch11.setExpression("Constraints[16]", "Params.sketch11_width")
sketch11.setExpression("Constraints[17]", "Params.sketch11_height")
sketch11.setExpression("Constraints[18]", "Params.sketch11_width2")
sketch11.setExpression("Constraints[19]", "Params.sketch11_height2")
pocket8 = body.newObject("PartDesign::Pocket", "Pocket007")
pocket8.Profile = sketch11
pocket8.setExpression("Length", "Params.pocket8_length")

sketch12 = body.newObject("Sketcher::SketchObject", "Sketch011")
sketch12.AttachmentSupport = (doc.getObject("XZ_Plane"), [""])
sketch12.MapMode = "FlatFace"
sketch12.AttachmentOffset = App.Placement(V(0, 0, -33), App.Rotation())
sketch12.addGeometry(Part.LineSegment(V(-26, 32.75, 0), V(-26, 34.5, 0)), False)
sketch12.addGeometry(Part.LineSegment(V(-26, 34.5, 0), V(-11, 34.5, 0)), False)
sketch12.addGeometry(Part.LineSegment(V(-11, 34.5, 0), V(-11, 32.75, 0)), False)
sketch12.addGeometry(Part.LineSegment(V(-11, 32.75, 0), V(-26, 32.75, 0)), False)
sketch12.addConstraint(Sketcher.Constraint("Coincident", 0, 2, 1, 1))
sketch12.addConstraint(Sketcher.Constraint("Coincident", 1, 2, 2, 1))
sketch12.addConstraint(Sketcher.Constraint("Coincident", 2, 2, 3, 1))
sketch12.addConstraint(Sketcher.Constraint("Coincident", 3, 2, 0, 1))
sketch12.addConstraint(Sketcher.Constraint("Vertical", 0))
sketch12.addConstraint(Sketcher.Constraint("Horizontal", 1))
sketch12.addConstraint(Sketcher.Constraint("Vertical", 2))
sketch12.addConstraint(Sketcher.Constraint("Horizontal", 3))
sketch12.addConstraint(Sketcher.Constraint("DistanceX", 1, 1, 1, 2, Q("15 mm")))
sketch12.addConstraint(Sketcher.Constraint("DistanceX", 0, 2, -1, 1, Q("26 mm")))
sketch12.addConstraint(Sketcher.Constraint("DistanceY", 0, 1, 0, 2, Q("1.75 mm")))
sketch12.addConstraint(Sketcher.Constraint("DistanceY", -1, 1, 0, 2, Q("34.5 mm")))
sketch12.setExpression("Constraints[8]", "Params.sketch12_width")
sketch12.setExpression("Constraints[10]", "Params.sketch12_height")
pocket9 = body.newObject("PartDesign::Pocket", "Pocket008")
pocket9.Profile = sketch12
pocket9.setExpression("Length", "Params.pocket9_length")
pocket9.Reversed = True
doc.recompute()

mirrored = body.newObject("PartDesign::Mirrored", "Mirrored")
mirrored.Originals = [pocket8, pocket9]
mirrored.MirrorPlane = (doc.getObject("XY_Plane"), [""])
body.Tip = mirrored

sketch13 = body.newObject("Sketcher::SketchObject", "Sketch012")
sketch13.AttachmentSupport = (doc.getObject("YZ_Plane"), [""])
sketch13.MapMode = "FlatFace"
sketch13.AttachmentOffset = App.Placement(V(0, 0, 36), App.Rotation())
sketch13.addGeometry(Part.LineSegment(V(32.7, 8.2, 0), V(28.3, 8.2, 0)), False)
sketch13.addGeometry(Part.LineSegment(V(28.3, 8.2, 0), V(28.3, -8.2, 0)), False)
sketch13.addGeometry(Part.LineSegment(V(28.3, -8.2, 0), V(32.7, -8.2, 0)), False)
sketch13.addGeometry(Part.LineSegment(V(32.7, -8.2, 0), V(32.7, 8.2, 0)), False)
sketch13.addGeometry(Part.LineSegment(V(29, -7.5, 0), V(29, 7.5, 0)), False)
sketch13.addGeometry(Part.LineSegment(V(29, 7.5, 0), V(32, 7.5, 0)), False)
sketch13.addGeometry(Part.LineSegment(V(32, 7.5, 0), V(32, -7.5, 0)), False)
sketch13.addGeometry(Part.LineSegment(V(32, -7.5, 0), V(29, -7.5, 0)), False)
sketch13.addConstraint(Sketcher.Constraint("Coincident", 0, 2, 1, 1))
sketch13.addConstraint(Sketcher.Constraint("Coincident", 1, 2, 2, 1))
sketch13.addConstraint(Sketcher.Constraint("Coincident", 2, 2, 3, 1))
sketch13.addConstraint(Sketcher.Constraint("Coincident", 3, 2, 0, 1))
sketch13.addConstraint(Sketcher.Constraint("Coincident", 4, 2, 5, 1))
sketch13.addConstraint(Sketcher.Constraint("Coincident", 5, 2, 6, 1))
sketch13.addConstraint(Sketcher.Constraint("Coincident", 6, 2, 7, 1))
sketch13.addConstraint(Sketcher.Constraint("Coincident", 7, 2, 4, 1))
sketch13.addConstraint(Sketcher.Constraint("Horizontal", 0))
sketch13.addConstraint(Sketcher.Constraint("Vertical", 1))
sketch13.addConstraint(Sketcher.Constraint("Horizontal", 2))
sketch13.addConstraint(Sketcher.Constraint("Vertical", 3))
sketch13.addConstraint(Sketcher.Constraint("Vertical", 4))
sketch13.addConstraint(Sketcher.Constraint("Horizontal", 5))
sketch13.addConstraint(Sketcher.Constraint("Vertical", 6))
sketch13.addConstraint(Sketcher.Constraint("Horizontal", 7))
sketch13.addConstraint(Sketcher.Constraint("DistanceX", 5, 1, 5, 2, Q("3 mm")))
sketch13.addConstraint(Sketcher.Constraint("DistanceY", 4, 1, 4, 2, Q("15 mm")))
sketch13.addConstraint(Sketcher.Constraint("DistanceX", 0, 2, 0, 1, Q("4.4 mm")))
sketch13.addConstraint(Sketcher.Constraint("DistanceY", 1, 2, 1, 1, Q("16.4 mm")))
sketch13.addConstraint(Sketcher.Constraint("DistanceX", -1, 1, 4, 2, Q("29 mm")))
sketch13.addConstraint(Sketcher.Constraint("DistanceX", -1, 1, 0, 2, Q("28.3 mm")))
sketch13.addConstraint(Sketcher.Constraint("DistanceY", -1, 1, 0, 2, Q("8.2 mm")))
sketch13.addConstraint(Sketcher.Constraint("DistanceY", -1, 1, 4, 2, Q("7.5 mm")))
sketch13.setExpression("Constraints[16]", "Params.sketch13_width")
sketch13.setExpression("Constraints[17]", "Params.sketch13_height")
sketch13.setExpression("Constraints[18]", "Params.sketch13_width2")
sketch13.setExpression("Constraints[19]", "Params.sketch13_height2")
pocket10 = body.newObject("PartDesign::Pocket", "Pocket009")
pocket10.Profile = sketch13
pocket10.setExpression("Length", "Params.pocket10_length")

sketch14 = body.newObject("Sketcher::SketchObject", "Sketch013")
sketch14.AttachmentSupport = (doc.getObject("XZ_Plane"), [""])
sketch14.MapMode = "FlatFace"
sketch14.AttachmentOffset = App.Placement(V(0, 0, -33), App.Rotation())
sketch14.addGeometry(Part.LineSegment(V(34.25, -7.75, 0), V(34.25, 7.25, 0)), False)
sketch14.addGeometry(Part.LineSegment(V(34.25, 7.25, 0), V(36, 7.25, 0)), False)
sketch14.addGeometry(Part.LineSegment(V(36, 7.25, 0), V(36, -7.75, 0)), False)
sketch14.addGeometry(Part.LineSegment(V(36, -7.75, 0), V(34.25, -7.75, 0)), False)
sketch14.addConstraint(Sketcher.Constraint("Coincident", 0, 2, 1, 1))
sketch14.addConstraint(Sketcher.Constraint("Coincident", 1, 2, 2, 1))
sketch14.addConstraint(Sketcher.Constraint("Coincident", 2, 2, 3, 1))
sketch14.addConstraint(Sketcher.Constraint("Coincident", 3, 2, 0, 1))
sketch14.addConstraint(Sketcher.Constraint("Vertical", 0))
sketch14.addConstraint(Sketcher.Constraint("Horizontal", 1))
sketch14.addConstraint(Sketcher.Constraint("Vertical", 2))
sketch14.addConstraint(Sketcher.Constraint("Horizontal", 3))
sketch14.addConstraint(Sketcher.Constraint("DistanceY", 0, 1, 0, 2, Q("15 mm")))
sketch14.addConstraint(Sketcher.Constraint("DistanceX", -1, 1, 1, 2, Q("36 mm")))
sketch14.addConstraint(Sketcher.Constraint("DistanceX", 1, 1, 1, 2, Q("1.75 mm")))
sketch14.addConstraint(Sketcher.Constraint("DistanceY", -1, 1, 0, 2, Q("7.25 mm")))
sketch14.setExpression("Constraints[8]", "Params.sketch14_height")
sketch14.setExpression("Constraints[10]", "Params.sketch14_width")
pocket11 = body.newObject("PartDesign::Pocket", "Pocket010")
pocket11.Profile = sketch14
pocket11.setExpression("Length", "Params.pocket11_length")
pocket11.Reversed = True

sketch15 = body.newObject("Sketcher::SketchObject", "Sketch014")
sketch15.AttachmentSupport = (doc.getObject("XZ_Plane"), [""])
sketch15.MapMode = "FlatFace"
sketch15.addGeometry(Part.LineSegment(V(-7.75, 31.125, 0), V(-7.75, 28.125, 0)), False)
sketch15.addGeometry(Part.LineSegment(V(-7.75, 28.125, 0), V(20.25, 28.125, 0)), False)
sketch15.addGeometry(Part.LineSegment(V(20.25, 28.125, 0), V(20.25, 31.125, 0)), False)
sketch15.addGeometry(Part.LineSegment(V(20.25, 31.125, 0), V(-7.75, 31.125, 0)), False)
sketch15.addConstraint(Sketcher.Constraint("Coincident", 0, 2, 1, 1))
sketch15.addConstraint(Sketcher.Constraint("Coincident", 1, 2, 2, 1))
sketch15.addConstraint(Sketcher.Constraint("Coincident", 2, 2, 3, 1))
sketch15.addConstraint(Sketcher.Constraint("Coincident", 3, 2, 0, 1))
sketch15.addConstraint(Sketcher.Constraint("Vertical", 0))
sketch15.addConstraint(Sketcher.Constraint("Horizontal", 1))
sketch15.addConstraint(Sketcher.Constraint("Vertical", 2))
sketch15.addConstraint(Sketcher.Constraint("Horizontal", 3))
sketch15.addConstraint(Sketcher.Constraint("DistanceX", 1, 1, 1, 2, Q("28 mm")))
sketch15.addConstraint(Sketcher.Constraint("DistanceY", 0, 2, 0, 1, Q("3 mm")))
sketch15.addConstraint(Sketcher.Constraint("DistanceX", 0, 2, -1, 1, Q("7.75 mm")))
sketch15.addConstraint(Sketcher.Constraint("DistanceY", -1, 1, 0, 2, Q("28.125 mm")))
sketch15.setExpression("Constraints[8]", "Params.sketch15_width")
sketch15.setExpression("Constraints[9]", "Params.sketch15_height")
pocket12 = body.newObject("PartDesign::Pocket", "Pocket011")
pocket12.Profile = sketch15
pocket12.setExpression("Length", "Params.pocket12_length")

sketch16 = body.newObject("Sketcher::SketchObject", "Sketch015")
sketch16.AttachmentSupport = (doc.getObject("XZ_Plane"), [""])
sketch16.MapMode = "FlatFace"
sketch16.AttachmentOffset = App.Placement(V(0, 0, -3), App.Rotation())
sketch16.addGeometry(Part.LineSegment(V(-36, -30.5, 0), V(-36, 30, 0)), False)
sketch16.addGeometry(Part.LineSegment(V(-36, 30, 0), V(-33.25, 30, 0)), False)
sketch16.addGeometry(Part.LineSegment(V(-33.25, 30, 0), V(-33.25, -30.5, 0)), False)
sketch16.addGeometry(Part.LineSegment(V(-33.25, -30.5, 0), V(-36, -30.5, 0)), False)
sketch16.addConstraint(Sketcher.Constraint("Coincident", 0, 2, 1, 1))
sketch16.addConstraint(Sketcher.Constraint("Coincident", 1, 2, 2, 1))
sketch16.addConstraint(Sketcher.Constraint("Coincident", 2, 2, 3, 1))
sketch16.addConstraint(Sketcher.Constraint("Coincident", 3, 2, 0, 1))
sketch16.addConstraint(Sketcher.Constraint("Vertical", 0))
sketch16.addConstraint(Sketcher.Constraint("Horizontal", 1))
sketch16.addConstraint(Sketcher.Constraint("Vertical", 2))
sketch16.addConstraint(Sketcher.Constraint("Horizontal", 3))
sketch16.addConstraint(Sketcher.Constraint("DistanceY", 0, 1, 0, 2, Q("60.5 mm")))
sketch16.addConstraint(Sketcher.Constraint("DistanceX", 0, 2, -1, 1, Q("36 mm")))
sketch16.addConstraint(Sketcher.Constraint("DistanceY", -1, 1, 0, 2, Q("30 mm")))
sketch16.addConstraint(Sketcher.Constraint("DistanceX", 1, 1, 1, 2, Q("2.75 mm")))
sketch16.setExpression("Constraints[8]", "Params.sketch16_height")
sketch16.setExpression("Constraints[11]", "Params.sketch16_width")
pad4 = body.newObject("PartDesign::Pad", "Pad003")
pad4.Profile = sketch16
pad4.setExpression("Length", "Params.pad4_length")
pad4.Reversed = True

doc.recompute()
